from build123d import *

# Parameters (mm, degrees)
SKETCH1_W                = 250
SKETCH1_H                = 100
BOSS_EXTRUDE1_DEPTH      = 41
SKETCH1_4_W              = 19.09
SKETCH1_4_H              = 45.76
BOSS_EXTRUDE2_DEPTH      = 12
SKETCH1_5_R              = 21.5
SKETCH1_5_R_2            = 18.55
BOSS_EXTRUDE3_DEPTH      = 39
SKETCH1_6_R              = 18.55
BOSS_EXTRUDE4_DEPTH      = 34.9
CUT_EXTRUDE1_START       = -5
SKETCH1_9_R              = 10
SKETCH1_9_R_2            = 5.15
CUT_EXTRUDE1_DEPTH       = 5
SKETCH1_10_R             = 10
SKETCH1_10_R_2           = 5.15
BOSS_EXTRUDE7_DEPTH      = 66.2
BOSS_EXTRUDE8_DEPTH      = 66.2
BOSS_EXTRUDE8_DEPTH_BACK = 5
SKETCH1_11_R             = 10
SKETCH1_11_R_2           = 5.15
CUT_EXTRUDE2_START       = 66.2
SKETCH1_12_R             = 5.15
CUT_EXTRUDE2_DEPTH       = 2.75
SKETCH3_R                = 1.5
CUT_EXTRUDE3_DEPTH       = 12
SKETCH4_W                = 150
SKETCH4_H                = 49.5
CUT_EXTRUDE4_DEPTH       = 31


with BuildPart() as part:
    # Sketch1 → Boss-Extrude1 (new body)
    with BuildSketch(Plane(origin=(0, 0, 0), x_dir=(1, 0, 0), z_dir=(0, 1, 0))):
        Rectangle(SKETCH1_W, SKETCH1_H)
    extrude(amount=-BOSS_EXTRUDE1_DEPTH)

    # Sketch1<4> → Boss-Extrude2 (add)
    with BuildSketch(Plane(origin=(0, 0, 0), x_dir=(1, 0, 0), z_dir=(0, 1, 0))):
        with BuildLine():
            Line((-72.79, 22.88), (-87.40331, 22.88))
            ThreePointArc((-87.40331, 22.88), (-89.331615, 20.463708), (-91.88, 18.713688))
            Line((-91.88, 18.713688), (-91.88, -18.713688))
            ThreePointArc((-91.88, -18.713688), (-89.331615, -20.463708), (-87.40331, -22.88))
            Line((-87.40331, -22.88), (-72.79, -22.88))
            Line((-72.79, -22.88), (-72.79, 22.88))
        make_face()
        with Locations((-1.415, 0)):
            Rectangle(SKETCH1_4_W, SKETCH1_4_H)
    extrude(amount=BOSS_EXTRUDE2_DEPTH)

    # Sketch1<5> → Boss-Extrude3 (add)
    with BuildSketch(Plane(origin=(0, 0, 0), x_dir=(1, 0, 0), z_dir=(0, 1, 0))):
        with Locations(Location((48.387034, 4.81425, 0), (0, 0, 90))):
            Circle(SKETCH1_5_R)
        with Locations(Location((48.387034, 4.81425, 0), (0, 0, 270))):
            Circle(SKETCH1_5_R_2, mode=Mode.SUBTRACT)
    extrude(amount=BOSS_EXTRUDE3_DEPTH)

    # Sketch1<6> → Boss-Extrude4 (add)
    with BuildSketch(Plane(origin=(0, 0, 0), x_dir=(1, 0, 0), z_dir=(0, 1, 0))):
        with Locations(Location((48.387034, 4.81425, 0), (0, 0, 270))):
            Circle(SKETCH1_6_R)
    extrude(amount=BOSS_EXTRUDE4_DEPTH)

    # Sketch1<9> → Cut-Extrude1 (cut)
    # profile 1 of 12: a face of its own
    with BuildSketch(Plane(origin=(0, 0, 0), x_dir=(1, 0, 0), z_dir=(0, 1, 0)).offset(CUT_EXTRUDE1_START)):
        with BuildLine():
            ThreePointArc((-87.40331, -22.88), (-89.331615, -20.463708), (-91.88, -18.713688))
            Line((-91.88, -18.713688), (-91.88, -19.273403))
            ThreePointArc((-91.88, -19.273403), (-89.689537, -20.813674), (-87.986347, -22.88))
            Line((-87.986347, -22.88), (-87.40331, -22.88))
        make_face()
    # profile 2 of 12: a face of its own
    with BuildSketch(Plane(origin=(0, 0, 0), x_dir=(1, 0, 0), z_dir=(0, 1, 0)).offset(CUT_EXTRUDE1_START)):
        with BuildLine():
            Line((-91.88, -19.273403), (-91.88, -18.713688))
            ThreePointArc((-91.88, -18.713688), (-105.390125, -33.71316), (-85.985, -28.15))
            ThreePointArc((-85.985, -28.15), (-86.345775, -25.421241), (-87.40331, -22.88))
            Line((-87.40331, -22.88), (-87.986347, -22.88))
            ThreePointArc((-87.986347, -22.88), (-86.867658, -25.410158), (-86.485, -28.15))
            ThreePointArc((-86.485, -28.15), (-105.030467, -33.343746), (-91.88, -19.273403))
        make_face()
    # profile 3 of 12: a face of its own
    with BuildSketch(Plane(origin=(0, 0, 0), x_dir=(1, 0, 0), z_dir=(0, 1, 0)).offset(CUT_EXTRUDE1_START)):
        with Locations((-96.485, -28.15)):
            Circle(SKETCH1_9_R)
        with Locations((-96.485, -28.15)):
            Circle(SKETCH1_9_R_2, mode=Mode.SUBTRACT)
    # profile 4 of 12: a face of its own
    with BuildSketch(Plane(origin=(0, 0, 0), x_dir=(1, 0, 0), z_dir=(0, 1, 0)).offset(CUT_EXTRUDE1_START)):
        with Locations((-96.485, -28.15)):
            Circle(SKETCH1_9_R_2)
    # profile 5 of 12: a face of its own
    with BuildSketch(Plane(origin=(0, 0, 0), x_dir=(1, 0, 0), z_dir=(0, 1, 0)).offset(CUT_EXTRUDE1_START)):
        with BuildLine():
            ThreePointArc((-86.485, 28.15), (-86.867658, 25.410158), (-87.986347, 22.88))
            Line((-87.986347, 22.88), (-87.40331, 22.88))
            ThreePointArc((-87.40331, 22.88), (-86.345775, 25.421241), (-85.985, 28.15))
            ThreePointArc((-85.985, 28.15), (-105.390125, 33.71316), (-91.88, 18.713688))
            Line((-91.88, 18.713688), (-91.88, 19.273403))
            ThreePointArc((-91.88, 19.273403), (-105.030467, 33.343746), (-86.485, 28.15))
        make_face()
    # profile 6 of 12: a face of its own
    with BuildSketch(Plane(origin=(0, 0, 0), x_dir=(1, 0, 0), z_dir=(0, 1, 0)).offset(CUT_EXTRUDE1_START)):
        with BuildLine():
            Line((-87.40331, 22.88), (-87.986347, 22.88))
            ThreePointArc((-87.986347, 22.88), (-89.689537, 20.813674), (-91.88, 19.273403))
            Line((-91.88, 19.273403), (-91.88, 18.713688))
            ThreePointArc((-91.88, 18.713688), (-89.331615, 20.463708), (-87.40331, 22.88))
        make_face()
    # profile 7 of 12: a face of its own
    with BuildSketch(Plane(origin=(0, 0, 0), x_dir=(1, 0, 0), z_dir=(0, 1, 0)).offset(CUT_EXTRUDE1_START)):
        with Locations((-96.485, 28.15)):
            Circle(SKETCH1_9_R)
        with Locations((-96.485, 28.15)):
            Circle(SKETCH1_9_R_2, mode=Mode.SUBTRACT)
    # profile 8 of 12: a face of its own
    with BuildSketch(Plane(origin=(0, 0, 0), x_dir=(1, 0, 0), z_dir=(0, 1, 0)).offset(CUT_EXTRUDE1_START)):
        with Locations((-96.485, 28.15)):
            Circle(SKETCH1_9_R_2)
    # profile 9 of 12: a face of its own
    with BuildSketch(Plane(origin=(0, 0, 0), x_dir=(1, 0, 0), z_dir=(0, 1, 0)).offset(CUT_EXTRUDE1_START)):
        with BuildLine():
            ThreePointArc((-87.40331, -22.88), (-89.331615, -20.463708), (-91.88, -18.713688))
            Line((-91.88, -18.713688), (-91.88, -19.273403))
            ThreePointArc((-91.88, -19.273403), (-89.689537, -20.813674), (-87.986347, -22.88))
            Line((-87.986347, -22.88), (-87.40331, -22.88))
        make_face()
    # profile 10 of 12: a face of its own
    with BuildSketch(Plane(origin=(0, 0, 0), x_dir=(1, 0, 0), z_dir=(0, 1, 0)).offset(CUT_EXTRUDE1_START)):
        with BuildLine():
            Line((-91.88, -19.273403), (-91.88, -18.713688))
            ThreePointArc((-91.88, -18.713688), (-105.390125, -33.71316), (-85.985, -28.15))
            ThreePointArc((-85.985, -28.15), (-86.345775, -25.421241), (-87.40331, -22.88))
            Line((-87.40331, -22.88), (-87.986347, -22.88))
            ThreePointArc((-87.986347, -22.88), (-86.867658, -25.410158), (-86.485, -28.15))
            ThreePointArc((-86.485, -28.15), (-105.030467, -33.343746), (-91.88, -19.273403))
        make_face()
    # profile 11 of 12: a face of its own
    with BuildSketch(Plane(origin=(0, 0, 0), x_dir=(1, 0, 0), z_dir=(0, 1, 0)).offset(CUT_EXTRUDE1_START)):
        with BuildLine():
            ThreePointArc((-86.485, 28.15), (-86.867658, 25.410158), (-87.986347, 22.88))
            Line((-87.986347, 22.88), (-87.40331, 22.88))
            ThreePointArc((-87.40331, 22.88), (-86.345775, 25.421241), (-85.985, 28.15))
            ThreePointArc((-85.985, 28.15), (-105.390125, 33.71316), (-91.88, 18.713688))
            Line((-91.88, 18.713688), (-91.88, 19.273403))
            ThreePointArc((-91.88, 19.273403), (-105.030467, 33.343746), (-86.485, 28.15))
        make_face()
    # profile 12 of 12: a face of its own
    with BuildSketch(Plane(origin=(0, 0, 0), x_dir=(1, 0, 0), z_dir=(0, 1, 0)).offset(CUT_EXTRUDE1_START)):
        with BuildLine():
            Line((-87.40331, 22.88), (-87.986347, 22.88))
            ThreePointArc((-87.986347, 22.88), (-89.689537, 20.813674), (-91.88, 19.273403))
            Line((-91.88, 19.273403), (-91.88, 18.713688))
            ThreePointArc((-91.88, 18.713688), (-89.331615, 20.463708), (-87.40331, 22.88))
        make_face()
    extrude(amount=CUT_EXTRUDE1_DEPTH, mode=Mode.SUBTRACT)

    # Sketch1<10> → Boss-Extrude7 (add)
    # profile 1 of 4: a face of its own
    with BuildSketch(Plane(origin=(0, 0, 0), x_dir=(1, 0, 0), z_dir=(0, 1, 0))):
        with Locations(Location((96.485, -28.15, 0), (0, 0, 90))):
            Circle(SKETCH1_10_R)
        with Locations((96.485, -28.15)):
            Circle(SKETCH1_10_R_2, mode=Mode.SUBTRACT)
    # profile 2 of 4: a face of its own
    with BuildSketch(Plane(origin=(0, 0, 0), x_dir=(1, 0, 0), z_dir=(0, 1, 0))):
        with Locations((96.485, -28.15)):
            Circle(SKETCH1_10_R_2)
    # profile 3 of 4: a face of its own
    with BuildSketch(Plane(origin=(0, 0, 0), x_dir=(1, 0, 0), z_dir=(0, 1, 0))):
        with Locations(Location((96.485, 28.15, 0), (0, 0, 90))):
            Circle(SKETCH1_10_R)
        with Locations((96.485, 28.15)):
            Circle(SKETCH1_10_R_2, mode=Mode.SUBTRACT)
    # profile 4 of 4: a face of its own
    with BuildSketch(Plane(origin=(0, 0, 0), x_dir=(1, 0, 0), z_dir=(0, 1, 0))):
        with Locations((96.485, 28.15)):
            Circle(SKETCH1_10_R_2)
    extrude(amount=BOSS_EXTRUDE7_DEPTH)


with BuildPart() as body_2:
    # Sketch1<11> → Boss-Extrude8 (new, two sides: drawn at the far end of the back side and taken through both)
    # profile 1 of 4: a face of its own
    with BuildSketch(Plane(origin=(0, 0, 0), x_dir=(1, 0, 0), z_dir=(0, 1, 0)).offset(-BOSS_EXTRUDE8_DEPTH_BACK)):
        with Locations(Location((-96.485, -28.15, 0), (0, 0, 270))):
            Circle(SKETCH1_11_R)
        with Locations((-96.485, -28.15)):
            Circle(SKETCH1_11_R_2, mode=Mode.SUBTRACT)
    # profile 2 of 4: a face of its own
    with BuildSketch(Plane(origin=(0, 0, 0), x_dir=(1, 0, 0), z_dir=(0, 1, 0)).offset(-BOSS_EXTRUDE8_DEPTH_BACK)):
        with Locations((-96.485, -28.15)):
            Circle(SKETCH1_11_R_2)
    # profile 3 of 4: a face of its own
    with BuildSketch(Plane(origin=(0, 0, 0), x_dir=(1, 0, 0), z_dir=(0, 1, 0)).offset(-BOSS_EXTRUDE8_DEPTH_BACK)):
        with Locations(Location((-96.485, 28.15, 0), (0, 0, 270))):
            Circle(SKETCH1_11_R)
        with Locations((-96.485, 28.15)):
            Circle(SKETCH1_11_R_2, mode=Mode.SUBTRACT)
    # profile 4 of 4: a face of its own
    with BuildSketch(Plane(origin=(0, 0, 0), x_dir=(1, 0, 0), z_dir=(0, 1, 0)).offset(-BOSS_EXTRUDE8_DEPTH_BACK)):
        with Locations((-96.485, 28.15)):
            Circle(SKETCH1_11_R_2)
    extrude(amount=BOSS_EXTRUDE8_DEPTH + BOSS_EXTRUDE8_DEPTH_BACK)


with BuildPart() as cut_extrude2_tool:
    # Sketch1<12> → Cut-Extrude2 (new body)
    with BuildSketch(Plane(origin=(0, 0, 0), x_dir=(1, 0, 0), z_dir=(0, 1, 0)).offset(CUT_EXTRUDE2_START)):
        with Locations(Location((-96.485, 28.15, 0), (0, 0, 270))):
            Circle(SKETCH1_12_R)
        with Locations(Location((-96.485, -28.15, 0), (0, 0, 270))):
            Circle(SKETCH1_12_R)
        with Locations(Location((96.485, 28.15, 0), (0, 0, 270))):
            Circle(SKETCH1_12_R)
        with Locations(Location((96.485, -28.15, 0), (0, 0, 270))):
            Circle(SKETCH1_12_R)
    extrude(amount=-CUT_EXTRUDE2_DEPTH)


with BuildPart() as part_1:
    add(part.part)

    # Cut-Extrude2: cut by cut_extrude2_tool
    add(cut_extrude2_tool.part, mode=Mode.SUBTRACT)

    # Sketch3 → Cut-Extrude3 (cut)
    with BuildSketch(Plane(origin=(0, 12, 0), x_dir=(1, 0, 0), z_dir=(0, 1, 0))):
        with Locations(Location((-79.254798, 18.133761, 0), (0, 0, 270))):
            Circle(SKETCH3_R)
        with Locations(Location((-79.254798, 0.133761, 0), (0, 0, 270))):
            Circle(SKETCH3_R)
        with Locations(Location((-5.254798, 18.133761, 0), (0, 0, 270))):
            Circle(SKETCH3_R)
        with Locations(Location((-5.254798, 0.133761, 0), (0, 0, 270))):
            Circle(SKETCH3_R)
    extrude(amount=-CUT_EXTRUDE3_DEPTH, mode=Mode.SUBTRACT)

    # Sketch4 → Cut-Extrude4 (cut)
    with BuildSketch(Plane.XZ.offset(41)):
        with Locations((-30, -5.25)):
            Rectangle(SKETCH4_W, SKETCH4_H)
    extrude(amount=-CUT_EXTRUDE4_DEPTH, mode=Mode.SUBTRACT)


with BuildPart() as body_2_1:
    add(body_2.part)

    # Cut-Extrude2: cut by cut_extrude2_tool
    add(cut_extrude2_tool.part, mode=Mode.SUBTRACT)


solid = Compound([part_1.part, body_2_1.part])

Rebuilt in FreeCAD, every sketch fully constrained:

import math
import FreeCAD as App
import Part
import Sketcher

V = App.Vector

doc = App.newDocument("Part")
body = doc.addObject("PartDesign::Body", "Body")

# Sketch on XZ plane
sketch1 = body.newObject("Sketcher::SketchObject", "Sketch")
sketch1.AttachmentSupport = (doc.getObject("XZ_Plane"), [""])
sketch1.MapMode = "FlatFace"
sketch1.addGeometry(Part.LineSegment(V(-125, -50, 0), V(-125, 50, 0)), False)
sketch1.addGeometry(Part.LineSegment(V(-125, 50, 0), V(125, 50, 0)), False)
sketch1.addGeometry(Part.LineSegment(V(125, 50, 0), V(125, -50, 0)), False)
sketch1.addGeometry(Part.LineSegment(V(125, -50, 0), V(-125, -50, 0)), False)
sketch1.addConstraint(Sketcher.Constraint("Coincident", 0, 2, 1, 1))
sketch1.addConstraint(Sketcher.Constraint("Coincident", 1, 2, 2, 1))
sketch1.addConstraint(Sketcher.Constraint("Coincident", 2, 2, 3, 1))
sketch1.addConstraint(Sketcher.Constraint("Coincident", 3, 2, 0, 1))
sketch1.addConstraint(Sketcher.Constraint("Vertical", 0))
sketch1.addConstraint(Sketcher.Constraint("Horizontal", 1))
sketch1.addConstraint(Sketcher.Constraint("Vertical", 2))
sketch1.addConstraint(Sketcher.Constraint("Horizontal", 3))
sketch1.addConstraint(Sketcher.Constraint("Symmetric", 0, 2, 2, 2, -1, 1))
sketch1.addConstraint(Sketcher.Constraint("DistanceX", 1, 1, 1, 2, 250.0))
sketch1.addConstraint(Sketcher.Constraint("DistanceY", 0, 1, 0, 2, 100.0))
pad1 = body.newObject("PartDesign::Pad", "Pad")
pad1.Profile = sketch1
pad1.Length = 41

# Sketch on XZ plane
sketch2 = body.newObject("Sketcher::SketchObject", "Sketch001")
sketch2.AttachmentSupport = (doc.getObject("XZ_Plane"), [""])
sketch2.MapMode = "FlatFace"
sketch2.addGeometry(Part.LineSegment(V(-73, -23, 0), V(-87, -23, 0)), False)
sketch2.addGeometry(Part.ArcOfCircle(Part.Circle(V(-96, -28, 0), V(0, 0, 1), 10), math.radians(30), math.radians(64)), False)
sketch2.addGeometry(Part.LineSegment(V(-92, -19, 0), V(-92, 19, 0)), False)
sketch2.addGeometry(Part.ArcOfCircle(Part.Circle(V(-96, 28, 0), V(0, 0, 1), 10), math.radians(-64), math.radians(-30)), False)
sketch2.addGeometry(Part.LineSegment(V(-87, 23, 0), V(-73, 23, 0)), False)
sketch2.addGeometry(Part.LineSegment(V(-73, 23, 0), V(-73, -23, 0)), False)
sketch2.addGeometry(Part.LineSegment(V(-11, -23, 0), V(-11, 23, 0)), False)
sketch2.addGeometry(Part.LineSegment(V(-11, 23, 0), V(8, 23, 0)), False)
sketch2.addGeometry(Part.LineSegment(V(8, 23, 0), V(8, -23, 0)), False)
sketch2.addGeometry(Part.LineSegment(V(8, -23, 0), V(-11, -23, 0)), False)
sketch2.addConstraint(Sketcher.Constraint("Coincident", 0, 2, 1, 1))
sketch2.addConstraint(Sketcher.Constraint("Coincident", 1, 2, 2, 1))
sketch2.addConstraint(Sketcher.Constraint("Coincident", 2, 2, 3, 1))
sketch2.addConstraint(Sketcher.Constraint("Coincident", 3, 2, 4, 1))
sketch2.addConstraint(Sketcher.Constraint("Coincident", 4, 2, 5, 1))
sketch2.addConstraint(Sketcher.Constraint("Coincident", 5, 2, 0, 1))
sketch2.addConstraint(Sketcher.Constraint("Coincident", 6, 2, 7, 1))
sketch2.addConstraint(Sketcher.Constraint("Coincident", 7, 2, 8, 1))
sketch2.addConstraint(Sketcher.Constraint("Coincident", 8, 2, 9, 1))
sketch2.addConstraint(Sketcher.Constraint("Coincident", 9, 2, 6, 1))
sketch2.addConstraint(Sketcher.Constraint("Horizontal", 0))
sketch2.addConstraint(Sketcher.Constraint("Vertical", 2))
sketch2.addConstraint(Sketcher.Constraint("Horizontal", 4))
sketch2.addConstraint(Sketcher.Constraint("Vertical", 5))
sketch2.addConstraint(Sketcher.Constraint("Vertical", 6))
sketch2.addConstraint(Sketcher.Constraint("Horizontal", 7))
sketch2.addConstraint(Sketcher.Constraint("Vertical", 8))
sketch2.addConstraint(Sketcher.Constraint("Horizontal", 9))
sketch2.addConstraint(Sketcher.Constraint("Equal", 1, 3))
sketch2.addConstraint(Sketcher.Constraint("Symmetric", 1, 3, 3, 3, -1))
sketch2.addConstraint(Sketcher.Constraint("Horizontal", 4, 2, 6, 2))
sketch2.addConstraint(Sketcher.Constraint("Horizontal", 5, 2, 8, 2))
sketch2.addConstraint(Sketcher.Constraint("Vertical", 0, 2, 3, 2))
sketch2.addConstraint(Sketcher.Constraint("Radius", 1, 10.5))
sketch2.addConstraint(Sketcher.Constraint("DistanceX", 7, 1, 7, 2, 19.09))
sketch2.addConstraint(Sketcher.Constraint("DistanceY", 5, 2, 5, 1, 45.76))
sketch2.addConstraint(Sketcher.Constraint("DistanceY", 1, 3, -1, 1, 28.149999))
sketch2.addConstraint(Sketcher.Constraint("DistanceX", 1, 2, -1, 1, 91.88))
sketch2.addConstraint(Sketcher.Constraint("DistanceX", 4, 2, -1, 1, 72.79))
sketch2.addConstraint(Sketcher.Constraint("DistanceX", 6, 2, -1, 1, 10.96))
sketch2.addConstraint(Sketcher.Constraint("DistanceX", 1, 3, -1, 1, 96.485001))
pad2 = body.newObject("PartDesign::Pad", "Pad001")
pad2.Profile = sketch2
pad2.Length = 12
pad2.Reversed = True

# Sketch on XZ plane
sketch3 = body.newObject("Sketcher::SketchObject", "Sketch002")
sketch3.AttachmentSupport = (doc.getObject("XZ_Plane"), [""])
sketch3.MapMode = "FlatFace"
sketch3.addGeometry(Part.Circle(V(48, -5, 0), V(0, 0, 1), 22), False)
sketch3.addGeometry(Part.Circle(V(48, -5, 0), V(0, 0, 1), 19), False)
sketch3.addConstraint(Sketcher.Constraint("Coincident", 1, 3, 0, 3))
sketch3.addConstraint(Sketcher.Constraint("Diameter", 0, 43.0))
sketch3.addConstraint(Sketcher.Constraint("Diameter", 1, 37.1))
sketch3.addConstraint(Sketcher.Constraint("DistanceY", 0, 3, -1, 1, 4.81425))
sketch3.addConstraint(Sketcher.Constraint("DistanceX", -1, 1, 0, 3, 48.387034))
pad3 = body.newObject("PartDesign::Pad", "Pad002")
pad3.Profile = sketch3
pad3.Length = 39
pad3.Reversed = True

# Sketch on XZ plane
sketch4 = body.newObject("Sketcher::SketchObject", "Sketch003")
sketch4.AttachmentSupport = (doc.getObject("XZ_Plane"), [""])
sketch4.MapMode = "FlatFace"
sketch4.addGeometry(Part.Circle(V(48, -5, 0), V(0, 0, 1), 19), False)
sketch4.addConstraint(Sketcher.Constraint("Diameter", 0, 37.1))
sketch4.addConstraint(Sketcher.Constraint("DistanceY", 0, 3, -1, 1, 4.81425))
sketch4.addConstraint(Sketcher.Constraint("DistanceX", -1, 1, 0, 3, 48.387034))
pad4 = body.newObject("PartDesign::Pad", "Pad003")
pad4.Profile = sketch4
pad4.Length = 34.9
pad4.Reversed = True

# Sketch on XZ plane
sketch5 = body.newObject("Sketcher::SketchObject", "Sketch004")
sketch5.AttachmentSupport = (doc.getObject("XZ_Plane"), [""])
sketch5.MapMode = "FlatFace"
sketch5.AttachmentOffset = App.Placement(V(0, 0, 5), App.Rotation())
sketch5.addGeometry(Part.ArcOfCircle(Part.Circle(V(-96, 28, 0), V(0, 0, 1), 10), math.radians(-64), math.radians(-30)), False)
sketch5.addGeometry(Part.ArcOfCircle(Part.Circle(V(-96, 28, 0), V(0, 0, 1), 11), math.radians(0), math.radians(296)), False)
sketch5.addGeometry(Part.ArcOfCircle(Part.Circle(V(-96, 28, 0), V(0, 0, 1), 10), math.radians(-30), math.radians(0)), False)
sketch5.addGeometry(Part.ArcOfCircle(Part.Circle(V(-96, -28, 0), V(0, 0, 1), 10), math.radians(0), math.radians(30)), False)
sketch5.addGeometry(Part.ArcOfCircle(Part.Circle(V(-96, -28, 0), V(0, 0, 1), 11), math.radians(64), math.radians(360)), False)
sketch5.addGeometry(Part.ArcOfCircle(Part.Circle(V(-96, -28, 0), V(0, 0, 1), 10), math.radians(30), math.radians(64)), False)
sketch5.addConstraint(Sketcher.Constraint("Tangent", 0, 1, 1, 2))
sketch5.addConstraint(Sketcher.Constraint("Tangent", 1, 1, 2, 2))
sketch5.addConstraint(Sketcher.Constraint("Tangent", 2, 1, 0, 2))
sketch5.addConstraint(Sketcher.Constraint("Tangent", 3, 1, 4, 2))
sketch5.addConstraint(Sketcher.Constraint("Tangent", 4, 1, 5, 2))
sketch5.addConstraint(Sketcher.Constraint("Tangent", 5, 1, 3, 2))
sketch5.addConstraint(Sketcher.Constraint("Equal", 2, 3))
sketch5.addConstraint(Sketcher.Constraint("Symmetric", 2, 3, 3, 3, -1))
sketch5.addConstraint(Sketcher.Constraint("Horizontal", 0, 3, 1, 1))
sketch5.addConstraint(Sketcher.Constraint("Horizontal", 5, 3, 3, 1))
sketch5.addConstraint(Sketcher.Constraint("Vertical", 0, 1, 4, 1))
sketch5.addConstraint(Sketcher.Constraint("Vertical", 2, 1, 5, 1))
sketch5.addConstraint(Sketcher.Constraint("Radius", 0, 10.5))
sketch5.addConstraint(Sketcher.Constraint("DistanceY", 4, 3, 0, 3, 56.299998))
sketch5.addConstraint(Sketcher.Constraint("DistanceX", 0, 1, -1, 1, 91.88))
sketch5.addConstraint(Sketcher.Constraint("DistanceY", -1, 1, 2, 1, 22.88))
sketch5.addConstraint(Sketcher.Constraint("DistanceX", 0, 3, -1, 1, 96.485001))
pocket1 = body.newObject("PartDesign::Pocket", "Pocket")
pocket1.Profile = sketch5
pocket1.Length = 5

# Sketch on XZ plane
sketch6 = body.newObject("Sketcher::SketchObject", "Sketch005")
sketch6.AttachmentSupport = (doc.getObject("XZ_Plane"), [""])
sketch6.MapMode = "FlatFace"
sketch6.addGeometry(Part.Circle(V(96, 28, 0), V(0, 0, 1), 10), False)
sketch6.addGeometry(Part.Circle(V(96, -28, 0), V(0, 0, 1), 10), False)
sketch6.addConstraint(Sketcher.Constraint("Equal", 0, 1))
sketch6.addConstraint(Sketcher.Constraint("Symmetric", 0, 3, 1, 3, -1))
sketch6.addConstraint(Sketcher.Constraint("Diameter", 0, 20.0))
sketch6.addConstraint(Sketcher.Constraint("DistanceY", 1, 3, 0, 3, 56.3))
sketch6.addConstraint(Sketcher.Constraint("DistanceX", -1, 1, 0, 3, 96.485))
pad5 = body.newObject("PartDesign::Pad", "Pad004")
pad5.Profile = sketch6
pad5.Length = 66.2
pad5.Reversed = True
body2 = doc.addObject("PartDesign::Body", "Body001")
body2.AllowCompound = True

# Sketch on XZ plane
sketch7 = body2.newObject("Sketcher::SketchObject", "Sketch006")
sketch7.AttachmentSupport = (doc.getObject("XZ_Plane001"), [""])
sketch7.MapMode = "FlatFace"
sketch7.addGeometry(Part.Circle(V(-96, 28, 0), V(0, 0, 1), 10), False)
sketch7.addGeometry(Part.Circle(V(-96, -28, 0), V(0, 0, 1), 10), False)
sketch7.addConstraint(Sketcher.Constraint("Equal", 0, 1))
sketch7.addConstraint(Sketcher.Constraint("Symmetric", 0, 3, 1, 3, -1))
sketch7.addConstraint(Sketcher.Constraint("Diameter", 0, 20.0))
sketch7.addConstraint(Sketcher.Constraint("DistanceY", 1, 3, 0, 3, 56.3))
sketch7.addConstraint(Sketcher.Constraint("DistanceX", 0, 3, -1, 1, 96.485))
pad6 = body2.newObject("PartDesign::Pad", "Pad005")
pad6.Profile = sketch7
pad6.Type = "TwoLengths"
pad6.Length = 66.2
pad6.Length2 = 5
pad6.Reversed = True
body3 = doc.addObject("PartDesign::Body", "Body002")
body3.AllowCompound = True

# Sketch on XZ plane
sketch8 = body3.newObject("Sketcher::SketchObject", "Sketch007")
sketch8.AttachmentSupport = (doc.getObject("XZ_Plane002"), [""])
sketch8.MapMode = "FlatFace"
sketch8.AttachmentOffset = App.Placement(V(0, 0, -66.2), App.Rotation())
sketch8.addGeometry(Part.Circle(V(-96, -28, 0), V(0, 0, 1), 5), False)
sketch8.addGeometry(Part.Circle(V(-96, 28, 0), V(0, 0, 1), 5), False)
sketch8.addGeometry(Part.Circle(V(96, -28, 0), V(0, 0, 1), 5), False)
sketch8.addGeometry(Part.Circle(V(96, 28, 0), V(0, 0, 1), 5), False)
sketch8.addConstraint(Sketcher.Constraint("Equal", 0, 1))
sketch8.addConstraint(Sketcher.Constraint("Equal", 1, 2))
sketch8.addConstraint(Sketcher.Constraint("Equal", 2, 3))
sketch8.addConstraint(Sketcher.Constraint("Symmetric", 1, 3, 2, 3, -1, 1))
sketch8.addConstraint(Sketcher.Constraint("Symmetric", 0, 3, 3, 3, -1, 1))
sketch8.addConstraint(Sketcher.Constraint("Symmetric", 0, 3, 2, 3, -2))
sketch8.addConstraint(Sketcher.Constraint("Diameter", 0, 10.3))
sketch8.addConstraint(Sketcher.Constraint("DistanceY", 0, 3, 1, 3, 56.3))
sketch8.addConstraint(Sketcher.Constraint("DistanceX", 0, 3, 2, 3, 192.97))
pad7 = body3.newObject("PartDesign::Pad", "Pad006")
pad7.Profile = sketch8
pad7.Length = 2.75
doc.recompute()

body4 = doc.addObject("PartDesign::Body", "Body003")
body4.BaseFeature = body3
boolean = body.newObject("PartDesign::Boolean", "Boolean")
boolean.Type = "Cut"
boolean.addObjects([body4])
doc.recompute()

# Sketch on XZ plane
sketch9 = body.newObject("Sketcher::SketchObject", "Sketch008")
sketch9.AttachmentSupport = (doc.getObject("XZ_Plane"), [""])
sketch9.MapMode = "FlatFace"
sketch9.AttachmentOffset = App.Placement(V(0, 0, -12), App.Rotation())
sketch9.addGeometry(Part.Circle(V(-79.3, -18.1, 0), V(0, 0, 1), 1.5), False)
sketch9.addGeometry(Part.Circle(V(-79.3, -0.1, 0), V(0, 0, 1), 1.5), False)
sketch9.addGeometry(Part.Circle(V(-5.3, -18.1, 0), V(0, 0, 1), 1.5), False)
sketch9.addGeometry(Part.Circle(V(-5.3, -0.1, 0), V(0, 0, 1), 1.5), False)
sketch9.addConstraint(Sketcher.Constraint("Equal", 0, 1))
sketch9.addConstraint(Sketcher.Constraint("Equal", 1, 2))
sketch9.addConstraint(Sketcher.Constraint("Equal", 2, 3))
sketch9.addConstraint(Sketcher.Constraint("Horizontal", 0, 3, 2, 3))
sketch9.addConstraint(Sketcher.Constraint("Horizontal", 1, 3, 3, 3))
sketch9.addConstraint(Sketcher.Constraint("Vertical", 0, 3, 1, 3))
sketch9.addConstraint(Sketcher.Constraint("Vertical", 2, 3, 3, 3))
sketch9.addConstraint(Sketcher.Constraint("Diameter", 0, 3.0))
sketch9.addConstraint(Sketcher.Constraint("DistanceY", 0, 3, 1, 3, 18.0))
sketch9.addConstraint(Sketcher.Constraint("DistanceX", 0, 3, 2, 3, 74.0))
sketch9.addConstraint(Sketcher.Constraint("DistanceY", 0, 3, -1, 1, 18.133761))
sketch9.addConstraint(Sketcher.Constraint("DistanceX", 0, 3, -1, 1, 79.254798))
pocket2 = body.newObject("PartDesign::Pocket", "Pocket001")
pocket2.Profile = sketch9
pocket2.Length = 12
pocket2.Reversed = True

# Sketch on XZ plane
sketch10 = body.newObject("Sketcher::SketchObject", "Sketch009")
sketch10.AttachmentSupport = (doc.getObject("XZ_Plane"), [""])
sketch10.MapMode = "FlatFace"
sketch10.AttachmentOffset = App.Placement(V(0, 0, 41), App.Rotation())
sketch10.addGeometry(Part.LineSegment(V(-105, 20, 0), V(-105, -30, 0)), False)
sketch10.addGeometry(Part.LineSegment(V(-105, -30, 0), V(45, -30, 0)), False)
sketch10.addGeometry(Part.LineSegment(V(45, -30, 0), V(45, 20, 0)), False)
sketch10.addGeometry(Part.LineSegment(V(45, 20, 0), V(-105, 20, 0)), False)
sketch10.addConstraint(Sketcher.Constraint("Coincident", 0, 2, 1, 1))
sketch10.addConstraint(Sketcher.Constraint("Coincident", 1, 2, 2, 1))
sketch10.addConstraint(Sketcher.Constraint("Coincident", 2, 2, 3, 1))
sketch10.addConstraint(Sketcher.Constraint("Coincident", 3, 2, 0, 1))
sketch10.addConstraint(Sketcher.Constraint("Vertical", 0))
sketch10.addConstraint(Sketcher.Constraint("Horizontal", 1))
sketch10.addConstraint(Sketcher.Constraint("Vertical", 2))
sketch10.addConstraint(Sketcher.Constraint("Horizontal", 3))
sketch10.addConstraint(Sketcher.Constraint("DistanceX", 1, 1, 1, 2, 150.0))
sketch10.addConstraint(Sketcher.Constraint("DistanceY", 0, 2, 0, 1, 49.5))
sketch10.addConstraint(Sketcher.Constraint("DistanceX", 0, 2, -1, 1, 105.0))
sketch10.addConstraint(Sketcher.Constraint("DistanceY", 0, 2, -1, 1, 30.0))
pocket3 = body.newObject("PartDesign::Pocket", "Pocket002")
pocket3.Profile = sketch10
pocket3.Length = 31
body2.AllowCompound = True
doc.recompute()

boolean2 = body2.newObject("PartDesign::Boolean", "Boolean001")
boolean2.Type = "Cut"
boolean2.addObjects([body3])

doc.recompute()
